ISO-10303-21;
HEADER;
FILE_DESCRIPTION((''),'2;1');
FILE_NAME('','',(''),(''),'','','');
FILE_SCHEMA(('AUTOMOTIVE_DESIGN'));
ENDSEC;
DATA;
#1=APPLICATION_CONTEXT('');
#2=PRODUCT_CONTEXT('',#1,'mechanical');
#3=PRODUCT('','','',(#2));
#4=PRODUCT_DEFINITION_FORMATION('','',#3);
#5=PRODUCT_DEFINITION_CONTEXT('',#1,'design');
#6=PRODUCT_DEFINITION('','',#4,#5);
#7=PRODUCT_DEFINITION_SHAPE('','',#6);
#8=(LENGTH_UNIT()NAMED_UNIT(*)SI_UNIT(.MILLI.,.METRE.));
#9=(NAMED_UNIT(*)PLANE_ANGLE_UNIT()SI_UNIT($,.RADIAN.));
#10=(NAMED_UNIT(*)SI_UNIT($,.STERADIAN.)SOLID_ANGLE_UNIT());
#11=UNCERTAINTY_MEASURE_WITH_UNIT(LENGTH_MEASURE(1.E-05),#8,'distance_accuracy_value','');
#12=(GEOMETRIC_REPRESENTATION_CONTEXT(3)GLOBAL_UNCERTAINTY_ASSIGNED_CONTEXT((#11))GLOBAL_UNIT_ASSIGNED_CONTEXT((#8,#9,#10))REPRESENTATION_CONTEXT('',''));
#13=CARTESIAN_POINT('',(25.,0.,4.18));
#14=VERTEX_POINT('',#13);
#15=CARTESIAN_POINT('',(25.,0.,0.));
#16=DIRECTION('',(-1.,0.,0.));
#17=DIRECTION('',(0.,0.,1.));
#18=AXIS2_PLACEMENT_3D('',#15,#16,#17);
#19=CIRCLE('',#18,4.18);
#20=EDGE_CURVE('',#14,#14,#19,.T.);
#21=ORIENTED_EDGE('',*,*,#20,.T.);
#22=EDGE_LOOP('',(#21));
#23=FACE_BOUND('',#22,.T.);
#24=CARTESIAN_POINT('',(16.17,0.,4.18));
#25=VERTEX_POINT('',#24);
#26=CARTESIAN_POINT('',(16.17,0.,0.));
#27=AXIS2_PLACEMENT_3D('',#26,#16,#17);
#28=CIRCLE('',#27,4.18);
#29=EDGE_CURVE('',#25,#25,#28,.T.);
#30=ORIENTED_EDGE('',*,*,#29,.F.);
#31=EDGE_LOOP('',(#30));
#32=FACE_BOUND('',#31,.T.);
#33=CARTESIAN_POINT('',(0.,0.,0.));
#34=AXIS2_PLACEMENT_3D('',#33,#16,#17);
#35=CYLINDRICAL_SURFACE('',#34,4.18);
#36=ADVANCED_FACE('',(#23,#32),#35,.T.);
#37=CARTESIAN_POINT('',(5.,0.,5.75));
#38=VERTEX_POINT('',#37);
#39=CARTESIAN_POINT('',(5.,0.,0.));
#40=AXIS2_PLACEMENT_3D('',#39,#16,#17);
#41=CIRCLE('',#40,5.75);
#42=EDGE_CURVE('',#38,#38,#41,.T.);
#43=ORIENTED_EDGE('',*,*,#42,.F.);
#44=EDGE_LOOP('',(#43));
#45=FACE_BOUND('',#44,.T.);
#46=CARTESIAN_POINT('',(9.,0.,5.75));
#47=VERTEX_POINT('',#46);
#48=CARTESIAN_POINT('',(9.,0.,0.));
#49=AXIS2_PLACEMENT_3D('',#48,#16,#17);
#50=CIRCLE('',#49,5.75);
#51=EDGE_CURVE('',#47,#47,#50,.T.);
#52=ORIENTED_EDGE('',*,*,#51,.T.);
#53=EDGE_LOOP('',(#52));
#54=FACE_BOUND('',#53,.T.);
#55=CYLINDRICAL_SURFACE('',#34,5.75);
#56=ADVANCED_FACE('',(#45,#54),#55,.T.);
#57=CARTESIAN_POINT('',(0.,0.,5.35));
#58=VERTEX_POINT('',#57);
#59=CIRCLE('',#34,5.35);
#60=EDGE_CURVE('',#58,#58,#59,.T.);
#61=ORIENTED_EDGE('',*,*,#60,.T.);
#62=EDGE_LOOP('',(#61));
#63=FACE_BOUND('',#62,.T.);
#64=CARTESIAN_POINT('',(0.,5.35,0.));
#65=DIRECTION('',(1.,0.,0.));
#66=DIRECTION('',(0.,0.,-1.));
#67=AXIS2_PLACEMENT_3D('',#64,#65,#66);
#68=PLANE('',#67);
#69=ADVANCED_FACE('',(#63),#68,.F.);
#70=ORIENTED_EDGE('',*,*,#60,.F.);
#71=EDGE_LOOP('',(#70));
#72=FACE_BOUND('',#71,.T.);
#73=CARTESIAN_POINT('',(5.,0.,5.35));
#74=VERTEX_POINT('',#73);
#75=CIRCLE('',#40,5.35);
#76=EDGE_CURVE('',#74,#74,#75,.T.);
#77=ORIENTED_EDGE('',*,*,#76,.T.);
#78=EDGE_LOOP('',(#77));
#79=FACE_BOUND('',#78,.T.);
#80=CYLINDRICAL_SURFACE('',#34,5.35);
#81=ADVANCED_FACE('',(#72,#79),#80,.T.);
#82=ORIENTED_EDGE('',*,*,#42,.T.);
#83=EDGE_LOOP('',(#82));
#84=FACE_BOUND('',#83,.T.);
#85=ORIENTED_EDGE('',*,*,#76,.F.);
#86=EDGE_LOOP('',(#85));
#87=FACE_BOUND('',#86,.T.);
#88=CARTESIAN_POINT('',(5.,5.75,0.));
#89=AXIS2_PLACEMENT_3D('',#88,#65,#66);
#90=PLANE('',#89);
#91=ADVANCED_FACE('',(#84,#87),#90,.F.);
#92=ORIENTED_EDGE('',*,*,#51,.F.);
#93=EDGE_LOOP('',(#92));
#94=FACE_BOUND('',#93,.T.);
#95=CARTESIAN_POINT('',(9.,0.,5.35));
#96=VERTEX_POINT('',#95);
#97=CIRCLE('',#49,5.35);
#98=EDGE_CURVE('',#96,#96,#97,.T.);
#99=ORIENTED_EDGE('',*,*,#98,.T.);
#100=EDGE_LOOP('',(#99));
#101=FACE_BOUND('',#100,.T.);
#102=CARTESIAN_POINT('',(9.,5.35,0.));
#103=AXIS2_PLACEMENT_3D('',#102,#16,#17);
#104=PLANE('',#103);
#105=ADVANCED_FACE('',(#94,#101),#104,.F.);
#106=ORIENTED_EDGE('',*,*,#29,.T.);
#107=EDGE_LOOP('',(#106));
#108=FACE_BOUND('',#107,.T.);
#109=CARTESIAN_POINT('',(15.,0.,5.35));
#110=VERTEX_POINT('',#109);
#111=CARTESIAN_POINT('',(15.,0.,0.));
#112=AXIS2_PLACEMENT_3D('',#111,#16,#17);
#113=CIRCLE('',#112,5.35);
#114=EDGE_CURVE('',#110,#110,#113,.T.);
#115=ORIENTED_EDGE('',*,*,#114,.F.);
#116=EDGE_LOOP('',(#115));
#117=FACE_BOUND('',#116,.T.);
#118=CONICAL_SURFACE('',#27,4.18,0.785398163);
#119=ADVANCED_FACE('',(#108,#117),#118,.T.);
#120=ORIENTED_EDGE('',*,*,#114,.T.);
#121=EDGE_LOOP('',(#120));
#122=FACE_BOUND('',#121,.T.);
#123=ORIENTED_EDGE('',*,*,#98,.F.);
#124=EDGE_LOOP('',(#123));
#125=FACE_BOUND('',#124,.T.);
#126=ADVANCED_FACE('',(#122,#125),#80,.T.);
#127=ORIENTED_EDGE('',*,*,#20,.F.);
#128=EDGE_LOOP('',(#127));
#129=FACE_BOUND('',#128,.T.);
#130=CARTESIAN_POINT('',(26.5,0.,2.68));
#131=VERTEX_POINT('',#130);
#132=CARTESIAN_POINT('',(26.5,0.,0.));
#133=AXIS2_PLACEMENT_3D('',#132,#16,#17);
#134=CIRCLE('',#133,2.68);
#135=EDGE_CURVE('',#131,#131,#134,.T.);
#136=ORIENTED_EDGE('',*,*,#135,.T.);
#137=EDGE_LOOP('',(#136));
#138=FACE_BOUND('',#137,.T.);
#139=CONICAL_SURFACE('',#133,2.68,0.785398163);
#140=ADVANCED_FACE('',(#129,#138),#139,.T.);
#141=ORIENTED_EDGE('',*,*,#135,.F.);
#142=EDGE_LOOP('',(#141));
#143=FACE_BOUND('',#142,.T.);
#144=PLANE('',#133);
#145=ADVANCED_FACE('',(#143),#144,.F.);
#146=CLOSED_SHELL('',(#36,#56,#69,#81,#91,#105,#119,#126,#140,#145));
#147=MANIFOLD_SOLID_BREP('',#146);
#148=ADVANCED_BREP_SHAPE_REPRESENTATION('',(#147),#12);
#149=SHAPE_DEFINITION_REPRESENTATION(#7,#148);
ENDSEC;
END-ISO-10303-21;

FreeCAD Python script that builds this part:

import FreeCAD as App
import Part
import Sketcher
from FreeCAD import Vector
Q = App.Units.Quantity


def add_polygon(sketch, points):
    """Adds a closed chain of lines whose ends are joined by coincident constraints."""
    first, n = sketch.GeometryCount, len(points)
    for a, b in zip(points, points[1:] + points[:1]):
        sketch.addGeometry(Part.LineSegment(App.Vector(*a, 0), App.Vector(*b, 0)), False)
    for i in range(n):
        sketch.addConstraint(Sketcher.Constraint("Coincident", first + i, 2, first + (i + 1) % n, 1))

doc = App.newDocument("Part")
body = doc.addObject("PartDesign::Body", "Body")

sketch1 = doc.addObject("Sketcher::SketchObject", "Sketch")
body.addObject(sketch1)
sketch1.AttachmentSupport = (doc.XY_Plane, [""])
sketch1.MapMode = "FlatFace"
add_polygon(sketch1, [(0, 0), (26.5, 0), (26.5, 2.68), (25, 4.18), (16.17, 4.18), (15, 5.35), (9, 5.35), (9, 5.75), (5, 5.75), (5, 5.35), (0, 5.35)])
sketch1.addConstraint(Sketcher.Constraint("Horizontal", 0))
sketch1.addConstraint(Sketcher.Constraint("Vertical", 1))
sketch1.addConstraint(Sketcher.Constraint("Horizontal", 3))
sketch1.addConstraint(Sketcher.Constraint("Horizontal", 5))
sketch1.addConstraint(Sketcher.Constraint("Vertical", 6))
sketch1.addConstraint(Sketcher.Constraint("Horizontal", 7))
sketch1.addConstraint(Sketcher.Constraint("Vertical", 8))
sketch1.addConstraint(Sketcher.Constraint("Horizontal", 9))
sketch1.addConstraint(Sketcher.Constraint("Vertical", 10))
sketch1.addConstraint(Sketcher.Constraint("Coincident", 10, 2, -1, 1))
sketch1.addConstraint(Sketcher.Constraint("Parallel", 2, 4))
sketch1.addConstraint(Sketcher.Constraint("Horizontal", 5, 2, 8, 2))
sketch1.addConstraint(Sketcher.Constraint("DistanceX", 5, 2, 5, 1, 6.0))
sketch1.addConstraint(Sketcher.Constraint("DistanceX", 7, 2, 7, 1, 4.0))
sketch1.addConstraint(Sketcher.Constraint("DistanceX", 9, 2, 9, 1, 5.0))
sketch1.addConstraint(Sketcher.Constraint("Angle", 2, Q("135 deg")))
sketch1.addConstraint(Sketcher.Constraint("DistanceX", 0, 1, 0, 2, 26.5))
sketch1.addConstraint(Sketcher.Constraint("DistanceY", 6, 1, 6, 2, 0.4))
sketch1.addConstraint(Sketcher.Constraint("DistanceX", -1, 1, 2, 2, 25.0))
sketch1.addConstraint(Sketcher.Constraint("DistanceX", 3, 2, 3, 1, 8.83))
sketch1.addConstraint(Sketcher.Constraint("DistanceY", 1, 1, 1, 2, 2.68))
revolution = doc.addObject("PartDesign::Revolution", "Revolution")
body.addObject(revolution)
revolution.Profile = sketch1
revolution.ReferenceAxis = (sketch1, ["H_Axis"])
revolution.Angle = 360

doc.recompute()
